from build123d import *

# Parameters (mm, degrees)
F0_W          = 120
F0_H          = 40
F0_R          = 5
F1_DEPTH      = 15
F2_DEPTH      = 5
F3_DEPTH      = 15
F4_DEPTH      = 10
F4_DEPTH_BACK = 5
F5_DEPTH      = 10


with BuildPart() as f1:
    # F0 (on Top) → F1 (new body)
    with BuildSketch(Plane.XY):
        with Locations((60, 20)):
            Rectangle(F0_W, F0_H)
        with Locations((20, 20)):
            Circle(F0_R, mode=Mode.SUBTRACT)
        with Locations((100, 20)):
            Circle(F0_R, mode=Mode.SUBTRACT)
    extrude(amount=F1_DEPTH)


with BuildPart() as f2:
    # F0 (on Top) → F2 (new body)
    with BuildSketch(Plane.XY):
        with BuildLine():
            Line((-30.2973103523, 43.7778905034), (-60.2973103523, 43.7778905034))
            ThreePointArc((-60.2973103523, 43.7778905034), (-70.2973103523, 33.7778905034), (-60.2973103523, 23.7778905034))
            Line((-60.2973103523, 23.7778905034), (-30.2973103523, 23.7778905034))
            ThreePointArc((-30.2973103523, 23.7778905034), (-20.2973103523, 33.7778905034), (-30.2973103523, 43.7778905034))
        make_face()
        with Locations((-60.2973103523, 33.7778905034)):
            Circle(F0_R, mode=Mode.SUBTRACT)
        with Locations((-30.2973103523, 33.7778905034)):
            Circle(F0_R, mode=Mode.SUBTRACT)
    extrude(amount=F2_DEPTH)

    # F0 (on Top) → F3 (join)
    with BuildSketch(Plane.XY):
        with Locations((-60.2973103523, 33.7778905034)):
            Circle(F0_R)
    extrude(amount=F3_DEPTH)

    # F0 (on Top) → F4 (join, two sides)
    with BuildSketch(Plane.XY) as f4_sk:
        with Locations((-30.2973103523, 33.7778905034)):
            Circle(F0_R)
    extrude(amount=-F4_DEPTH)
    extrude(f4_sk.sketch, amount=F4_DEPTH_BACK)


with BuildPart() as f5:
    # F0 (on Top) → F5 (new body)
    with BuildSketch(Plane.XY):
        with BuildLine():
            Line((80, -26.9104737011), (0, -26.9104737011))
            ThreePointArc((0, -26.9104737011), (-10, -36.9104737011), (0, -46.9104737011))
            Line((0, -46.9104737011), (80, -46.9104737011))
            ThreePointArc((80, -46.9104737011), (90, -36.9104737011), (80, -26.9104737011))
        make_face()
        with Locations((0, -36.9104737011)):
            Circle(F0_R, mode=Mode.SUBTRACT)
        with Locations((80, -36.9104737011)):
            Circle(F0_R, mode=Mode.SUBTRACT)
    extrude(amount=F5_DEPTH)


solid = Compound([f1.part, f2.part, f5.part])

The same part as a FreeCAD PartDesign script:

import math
import FreeCAD as App
import Part
import Sketcher
Q = App.Units.Quantity

doc = App.newDocument("Part")
params = doc.addObject("Spreadsheet::Sheet", "Params")
for row, (alias, value) in enumerate([
    ("sketch1_diameter", "10 mm"),
    ("sketch1_width", "120 mm"),
    ("sketch1_height", "40 mm"),
    ("pad1_length", "15 mm"),
    ("sketch2_diameter", "10 mm"),
    ("sketch2_radius", "10 mm"),
    ("sketch2_width", "30 mm"),
    ("pad2_length", "5 mm"),
    ("sketch3_diameter", "10 mm"),
    ("pad3_length", "15 mm"),
    ("sketch4_diameter", "10 mm"),
    ("pad4_length", "10 mm"),
    ("pad4_length2", "5 mm"),
    ("sketch5_diameter", "10 mm"),
    ("sketch5_radius", "10 mm"),
    ("sketch5_width", "80 mm"),
    ("pad5_length", "10 mm"),
], start=1):
    params.set(f"A{row}", alias)
    params.set(f"B{row}", "=" + value)
    params.setAlias(f"B{row}", alias)

body = doc.addObject("PartDesign::Body", "Body")

# Sketch on XY plane
sketch1 = body.newObject("Sketcher::SketchObject", "Sketch")
sketch1.AttachmentSupport = (doc.getObject("XY_Plane"), [""])
sketch1.MapMode = "FlatFace"
sketch1.addGeometry(Part.LineSegment(App.Vector(0, 40, 0), App.Vector(0, 0, 0)), False)
sketch1.addGeometry(Part.LineSegment(App.Vector(0, 0, 0), App.Vector(120, 0, 0)), False)
sketch1.addGeometry(Part.LineSegment(App.Vector(120, 0, 0), App.Vector(120, 40, 0)), False)
sketch1.addGeometry(Part.LineSegment(App.Vector(120, 40, 0), App.Vector(0, 40, 0)), False)
sketch1.addGeometry(Part.Circle(App.Vector(20, 20, 0), App.Vector(0, 0, 1), 5), False)
sketch1.addGeometry(Part.Circle(App.Vector(100, 20, 0), App.Vector(0, 0, 1), 5), False)
sketch1.addConstraint(Sketcher.Constraint("Coincident", 0, 2, 1, 1))
sketch1.addConstraint(Sketcher.Constraint("Coincident", 1, 2, 2, 1))
sketch1.addConstraint(Sketcher.Constraint("Coincident", 2, 2, 3, 1))
sketch1.addConstraint(Sketcher.Constraint("Coincident", 3, 2, 0, 1))
sketch1.addConstraint(Sketcher.Constraint("Vertical", 0))
sketch1.addConstraint(Sketcher.Constraint("Horizontal", 1))
sketch1.addConstraint(Sketcher.Constraint("Vertical", 2))
sketch1.addConstraint(Sketcher.Constraint("Horizontal", 3))
sketch1.addConstraint(Sketcher.Constraint("Coincident", 0, 2, -1, 1))
sketch1.addConstraint(Sketcher.Constraint("Equal", 4, 5))
sketch1.addConstraint(Sketcher.Constraint("Horizontal", 4, 3, 5, 3))
sketch1.addConstraint(Sketcher.Constraint("Diameter", 4, Q("10 mm")))
sketch1.addConstraint(Sketcher.Constraint("DistanceX", 1, 1, 1, 2, Q("120 mm")))
sketch1.addConstraint(Sketcher.Constraint("DistanceY", 0, 2, 0, 1, Q("40 mm")))
sketch1.addConstraint(Sketcher.Constraint("DistanceX", -1, 1, 4, 3, Q("20 mm")))
sketch1.addConstraint(Sketcher.Constraint("DistanceY", -1, 1, 4, 3, Q("20 mm")))
sketch1.addConstraint(Sketcher.Constraint("DistanceX", -1, 1, 5, 3, Q("100 mm")))
sketch1.setExpression("Constraints[11]", "Params.sketch1_diameter")
sketch1.setExpression("Constraints[12]", "Params.sketch1_width")
sketch1.setExpression("Constraints[13]", "Params.sketch1_height")
pad1 = body.newObject("PartDesign::Pad", "Pad")
pad1.Profile = sketch1
pad1.setExpression("Length", "Params.pad1_length")
body2 = doc.addObject("PartDesign::Body", "Body001")

# Sketch on XY plane
sketch2 = body2.newObject("Sketcher::SketchObject", "Sketch001")
sketch2.AttachmentSupport = (doc.getObject("XY_Plane001"), [""])
sketch2.MapMode = "FlatFace"
sketch2.addGeometry(Part.LineSegment(App.Vector(-30.29731, 43.777891, 0), App.Vector(-60.29731, 43.777891, 0)), False)
sketch2.addGeometry(Part.ArcOfCircle(Part.Circle(App.Vector(-60.29731, 33.777891, 0), App.Vector(0, 0, 1), 10), math.radians(90), math.radians(270)), False)
sketch2.addGeometry(Part.LineSegment(App.Vector(-60.29731, 23.777891, 0), App.Vector(-30.29731, 23.777891, 0)), False)
sketch2.addGeometry(Part.ArcOfCircle(Part.Circle(App.Vector(-30.29731, 33.777891, 0), App.Vector(0, 0, 1), 10), math.radians(-90), math.radians(90)), False)
sketch2.addGeometry(Part.Circle(App.Vector(-60.29731, 33.777891, 0), App.Vector(0, 0, 1), 5), False)
sketch2.addGeometry(Part.Circle(App.Vector(-30.29731, 33.777891, 0), App.Vector(0, 0, 1), 5), False)
sketch2.addConstraint(Sketcher.Constraint("Tangent", 0, 2, 1, 1))
sketch2.addConstraint(Sketcher.Constraint("Tangent", 1, 2, 2, 1))
sketch2.addConstraint(Sketcher.Constraint("Tangent", 2, 2, 3, 1))
sketch2.addConstraint(Sketcher.Constraint("Tangent", 3, 2, 0, 1))
sketch2.addConstraint(Sketcher.Constraint("Horizontal", 0))
sketch2.addConstraint(Sketcher.Constraint("Horizontal", 2))
sketch2.addConstraint(Sketcher.Constraint("Coincident", 4, 3, 1, 3))
sketch2.addConstraint(Sketcher.Constraint("Coincident", 5, 3, 3, 3))
sketch2.addConstraint(Sketcher.Constraint("Equal", 4, 5))
sketch2.addConstraint(Sketcher.Constraint("Diameter", 4, Q("10 mm")))
sketch2.addConstraint(Sketcher.Constraint("Radius", 1, Q("10 mm")))
sketch2.addConstraint(Sketcher.Constraint("DistanceX", 0, 2, 0, 1, Q("30 mm")))
sketch2.addConstraint(Sketcher.Constraint("DistanceX", 1, 3, -1, 1, Q("60.29731 mm")))
sketch2.addConstraint(Sketcher.Constraint("DistanceY", -1, 1, 1, 3, Q("33.777891 mm")))
sketch2.setExpression("Constraints[9]", "Params.sketch2_diameter")
sketch2.setExpression("Constraints[10]", "Params.sketch2_radius")
sketch2.setExpression("Constraints[11]", "Params.sketch2_width")
pad2 = body2.newObject("PartDesign::Pad", "Pad001")
pad2.Profile = sketch2
pad2.setExpression("Length", "Params.pad2_length")

# Sketch on XY plane
sketch3 = body2.newObject("Sketcher::SketchObject", "Sketch002")
sketch3.AttachmentSupport = (doc.getObject("XY_Plane001"), [""])
sketch3.MapMode = "FlatFace"
sketch3.addGeometry(Part.Circle(App.Vector(-60.29731, 33.777891, 0), App.Vector(0, 0, 1), 5), False)
sketch3.addConstraint(Sketcher.Constraint("Diameter", 0, Q("10 mm")))
sketch3.addConstraint(Sketcher.Constraint("DistanceX", 0, 3, -1, 1, Q("60.29731 mm")))
sketch3.addConstraint(Sketcher.Constraint("DistanceY", -1, 1, 0, 3, Q("33.777891 mm")))
sketch3.setExpression("Constraints[0]", "Params.sketch3_diameter")
pad3 = body2.newObject("PartDesign::Pad", "Pad002")
pad3.Profile = sketch3
pad3.setExpression("Length", "Params.pad3_length")

# Sketch on XY plane
sketch4 = body2.newObject("Sketcher::SketchObject", "Sketch003")
sketch4.AttachmentSupport = (doc.getObject("XY_Plane001"), [""])
sketch4.MapMode = "FlatFace"
sketch4.addGeometry(Part.Circle(App.Vector(-30.29731, 33.777891, 0), App.Vector(0, 0, 1), 5), False)
sketch4.addConstraint(Sketcher.Constraint("Diameter", 0, Q("10 mm")))
sketch4.addConstraint(Sketcher.Constraint("DistanceX", 0, 3, -1, 1, Q("30.29731 mm")))
sketch4.addConstraint(Sketcher.Constraint("DistanceY", -1, 1, 0, 3, Q("33.777891 mm")))
sketch4.setExpression("Constraints[0]", "Params.sketch4_diameter")
pad4 = body2.newObject("PartDesign::Pad", "Pad003")
pad4.Profile = sketch4
pad4.Type = "TwoLengths"
pad4.setExpression("Length", "Params.pad4_length")
pad4.setExpression("Length2", "Params.pad4_length2")
pad4.Reversed = True
body3 = doc.addObject("PartDesign::Body", "Body002")

# Sketch on XY plane
sketch5 = body3.newObject("Sketcher::SketchObject", "Sketch004")
sketch5.AttachmentSupport = (doc.getObject("XY_Plane002"), [""])
sketch5.MapMode = "FlatFace"
sketch5.addGeometry(Part.LineSegment(App.Vector(80, -26.910474, 0), App.Vector(0, -26.910474, 0)), False)
sketch5.addGeometry(Part.ArcOfCircle(Part.Circle(App.Vector(0, -36.910474, 0), App.Vector(0, 0, 1), 10), math.radians(90), math.radians(270)), False)
sketch5.addGeometry(Part.LineSegment(App.Vector(0, -46.910474, 0), App.Vector(80, -46.910474, 0)), False)
sketch5.addGeometry(Part.ArcOfCircle(Part.Circle(App.Vector(80, -36.910474, 0), App.Vector(0, 0, 1), 10), math.radians(-90), math.radians(90)), False)
sketch5.addGeometry(Part.Circle(App.Vector(0, -36.910474, 0), App.Vector(0, 0, 1), 5), False)
sketch5.addGeometry(Part.Circle(App.Vector(80, -36.910474, 0), App.Vector(0, 0, 1), 5), False)
sketch5.addConstraint(Sketcher.Constraint("Tangent", 0, 2, 1, 1))
sketch5.addConstraint(Sketcher.Constraint("Tangent", 1, 2, 2, 1))
sketch5.addConstraint(Sketcher.Constraint("Tangent", 2, 2, 3, 1))
sketch5.addConstraint(Sketcher.Constraint("Tangent", 3, 2, 0, 1))
sketch5.addConstraint(Sketcher.Constraint("Horizontal", 0))
sketch5.addConstraint(Sketcher.Constraint("Horizontal", 2))
sketch5.addConstraint(Sketcher.Constraint("Coincident", 4, 3, 1, 3))
sketch5.addConstraint(Sketcher.Constraint("Coincident", 5, 3, 3, 3))
sketch5.addConstraint(Sketcher.Constraint("Equal", 4, 5))
sketch5.addConstraint(Sketcher.Constraint("PointOnObject", 1, 3, -2))
sketch5.addConstraint(Sketcher.Constraint("Diameter", 4, Q("10 mm")))
sketch5.addConstraint(Sketcher.Constraint("Radius", 1, Q("10 mm")))
sketch5.addConstraint(Sketcher.Constraint("DistanceX", 0, 2, 0, 1, Q("80 mm")))
sketch5.addConstraint(Sketcher.Constraint("DistanceY", 1, 3, -1, 1, Q("36.910474 mm")))
sketch5.setExpression("Constraints[10]", "Params.sketch5_diameter")
sketch5.setExpression("Constraints[11]", "Params.sketch5_radius")
sketch5.setExpression("Constraints[12]", "Params.sketch5_width")
pad5 = body3.newObject("PartDesign::Pad", "Pad004")
pad5.Profile = sketch5
pad5.setExpression("Length", "Params.pad5_length")

doc.recompute()
